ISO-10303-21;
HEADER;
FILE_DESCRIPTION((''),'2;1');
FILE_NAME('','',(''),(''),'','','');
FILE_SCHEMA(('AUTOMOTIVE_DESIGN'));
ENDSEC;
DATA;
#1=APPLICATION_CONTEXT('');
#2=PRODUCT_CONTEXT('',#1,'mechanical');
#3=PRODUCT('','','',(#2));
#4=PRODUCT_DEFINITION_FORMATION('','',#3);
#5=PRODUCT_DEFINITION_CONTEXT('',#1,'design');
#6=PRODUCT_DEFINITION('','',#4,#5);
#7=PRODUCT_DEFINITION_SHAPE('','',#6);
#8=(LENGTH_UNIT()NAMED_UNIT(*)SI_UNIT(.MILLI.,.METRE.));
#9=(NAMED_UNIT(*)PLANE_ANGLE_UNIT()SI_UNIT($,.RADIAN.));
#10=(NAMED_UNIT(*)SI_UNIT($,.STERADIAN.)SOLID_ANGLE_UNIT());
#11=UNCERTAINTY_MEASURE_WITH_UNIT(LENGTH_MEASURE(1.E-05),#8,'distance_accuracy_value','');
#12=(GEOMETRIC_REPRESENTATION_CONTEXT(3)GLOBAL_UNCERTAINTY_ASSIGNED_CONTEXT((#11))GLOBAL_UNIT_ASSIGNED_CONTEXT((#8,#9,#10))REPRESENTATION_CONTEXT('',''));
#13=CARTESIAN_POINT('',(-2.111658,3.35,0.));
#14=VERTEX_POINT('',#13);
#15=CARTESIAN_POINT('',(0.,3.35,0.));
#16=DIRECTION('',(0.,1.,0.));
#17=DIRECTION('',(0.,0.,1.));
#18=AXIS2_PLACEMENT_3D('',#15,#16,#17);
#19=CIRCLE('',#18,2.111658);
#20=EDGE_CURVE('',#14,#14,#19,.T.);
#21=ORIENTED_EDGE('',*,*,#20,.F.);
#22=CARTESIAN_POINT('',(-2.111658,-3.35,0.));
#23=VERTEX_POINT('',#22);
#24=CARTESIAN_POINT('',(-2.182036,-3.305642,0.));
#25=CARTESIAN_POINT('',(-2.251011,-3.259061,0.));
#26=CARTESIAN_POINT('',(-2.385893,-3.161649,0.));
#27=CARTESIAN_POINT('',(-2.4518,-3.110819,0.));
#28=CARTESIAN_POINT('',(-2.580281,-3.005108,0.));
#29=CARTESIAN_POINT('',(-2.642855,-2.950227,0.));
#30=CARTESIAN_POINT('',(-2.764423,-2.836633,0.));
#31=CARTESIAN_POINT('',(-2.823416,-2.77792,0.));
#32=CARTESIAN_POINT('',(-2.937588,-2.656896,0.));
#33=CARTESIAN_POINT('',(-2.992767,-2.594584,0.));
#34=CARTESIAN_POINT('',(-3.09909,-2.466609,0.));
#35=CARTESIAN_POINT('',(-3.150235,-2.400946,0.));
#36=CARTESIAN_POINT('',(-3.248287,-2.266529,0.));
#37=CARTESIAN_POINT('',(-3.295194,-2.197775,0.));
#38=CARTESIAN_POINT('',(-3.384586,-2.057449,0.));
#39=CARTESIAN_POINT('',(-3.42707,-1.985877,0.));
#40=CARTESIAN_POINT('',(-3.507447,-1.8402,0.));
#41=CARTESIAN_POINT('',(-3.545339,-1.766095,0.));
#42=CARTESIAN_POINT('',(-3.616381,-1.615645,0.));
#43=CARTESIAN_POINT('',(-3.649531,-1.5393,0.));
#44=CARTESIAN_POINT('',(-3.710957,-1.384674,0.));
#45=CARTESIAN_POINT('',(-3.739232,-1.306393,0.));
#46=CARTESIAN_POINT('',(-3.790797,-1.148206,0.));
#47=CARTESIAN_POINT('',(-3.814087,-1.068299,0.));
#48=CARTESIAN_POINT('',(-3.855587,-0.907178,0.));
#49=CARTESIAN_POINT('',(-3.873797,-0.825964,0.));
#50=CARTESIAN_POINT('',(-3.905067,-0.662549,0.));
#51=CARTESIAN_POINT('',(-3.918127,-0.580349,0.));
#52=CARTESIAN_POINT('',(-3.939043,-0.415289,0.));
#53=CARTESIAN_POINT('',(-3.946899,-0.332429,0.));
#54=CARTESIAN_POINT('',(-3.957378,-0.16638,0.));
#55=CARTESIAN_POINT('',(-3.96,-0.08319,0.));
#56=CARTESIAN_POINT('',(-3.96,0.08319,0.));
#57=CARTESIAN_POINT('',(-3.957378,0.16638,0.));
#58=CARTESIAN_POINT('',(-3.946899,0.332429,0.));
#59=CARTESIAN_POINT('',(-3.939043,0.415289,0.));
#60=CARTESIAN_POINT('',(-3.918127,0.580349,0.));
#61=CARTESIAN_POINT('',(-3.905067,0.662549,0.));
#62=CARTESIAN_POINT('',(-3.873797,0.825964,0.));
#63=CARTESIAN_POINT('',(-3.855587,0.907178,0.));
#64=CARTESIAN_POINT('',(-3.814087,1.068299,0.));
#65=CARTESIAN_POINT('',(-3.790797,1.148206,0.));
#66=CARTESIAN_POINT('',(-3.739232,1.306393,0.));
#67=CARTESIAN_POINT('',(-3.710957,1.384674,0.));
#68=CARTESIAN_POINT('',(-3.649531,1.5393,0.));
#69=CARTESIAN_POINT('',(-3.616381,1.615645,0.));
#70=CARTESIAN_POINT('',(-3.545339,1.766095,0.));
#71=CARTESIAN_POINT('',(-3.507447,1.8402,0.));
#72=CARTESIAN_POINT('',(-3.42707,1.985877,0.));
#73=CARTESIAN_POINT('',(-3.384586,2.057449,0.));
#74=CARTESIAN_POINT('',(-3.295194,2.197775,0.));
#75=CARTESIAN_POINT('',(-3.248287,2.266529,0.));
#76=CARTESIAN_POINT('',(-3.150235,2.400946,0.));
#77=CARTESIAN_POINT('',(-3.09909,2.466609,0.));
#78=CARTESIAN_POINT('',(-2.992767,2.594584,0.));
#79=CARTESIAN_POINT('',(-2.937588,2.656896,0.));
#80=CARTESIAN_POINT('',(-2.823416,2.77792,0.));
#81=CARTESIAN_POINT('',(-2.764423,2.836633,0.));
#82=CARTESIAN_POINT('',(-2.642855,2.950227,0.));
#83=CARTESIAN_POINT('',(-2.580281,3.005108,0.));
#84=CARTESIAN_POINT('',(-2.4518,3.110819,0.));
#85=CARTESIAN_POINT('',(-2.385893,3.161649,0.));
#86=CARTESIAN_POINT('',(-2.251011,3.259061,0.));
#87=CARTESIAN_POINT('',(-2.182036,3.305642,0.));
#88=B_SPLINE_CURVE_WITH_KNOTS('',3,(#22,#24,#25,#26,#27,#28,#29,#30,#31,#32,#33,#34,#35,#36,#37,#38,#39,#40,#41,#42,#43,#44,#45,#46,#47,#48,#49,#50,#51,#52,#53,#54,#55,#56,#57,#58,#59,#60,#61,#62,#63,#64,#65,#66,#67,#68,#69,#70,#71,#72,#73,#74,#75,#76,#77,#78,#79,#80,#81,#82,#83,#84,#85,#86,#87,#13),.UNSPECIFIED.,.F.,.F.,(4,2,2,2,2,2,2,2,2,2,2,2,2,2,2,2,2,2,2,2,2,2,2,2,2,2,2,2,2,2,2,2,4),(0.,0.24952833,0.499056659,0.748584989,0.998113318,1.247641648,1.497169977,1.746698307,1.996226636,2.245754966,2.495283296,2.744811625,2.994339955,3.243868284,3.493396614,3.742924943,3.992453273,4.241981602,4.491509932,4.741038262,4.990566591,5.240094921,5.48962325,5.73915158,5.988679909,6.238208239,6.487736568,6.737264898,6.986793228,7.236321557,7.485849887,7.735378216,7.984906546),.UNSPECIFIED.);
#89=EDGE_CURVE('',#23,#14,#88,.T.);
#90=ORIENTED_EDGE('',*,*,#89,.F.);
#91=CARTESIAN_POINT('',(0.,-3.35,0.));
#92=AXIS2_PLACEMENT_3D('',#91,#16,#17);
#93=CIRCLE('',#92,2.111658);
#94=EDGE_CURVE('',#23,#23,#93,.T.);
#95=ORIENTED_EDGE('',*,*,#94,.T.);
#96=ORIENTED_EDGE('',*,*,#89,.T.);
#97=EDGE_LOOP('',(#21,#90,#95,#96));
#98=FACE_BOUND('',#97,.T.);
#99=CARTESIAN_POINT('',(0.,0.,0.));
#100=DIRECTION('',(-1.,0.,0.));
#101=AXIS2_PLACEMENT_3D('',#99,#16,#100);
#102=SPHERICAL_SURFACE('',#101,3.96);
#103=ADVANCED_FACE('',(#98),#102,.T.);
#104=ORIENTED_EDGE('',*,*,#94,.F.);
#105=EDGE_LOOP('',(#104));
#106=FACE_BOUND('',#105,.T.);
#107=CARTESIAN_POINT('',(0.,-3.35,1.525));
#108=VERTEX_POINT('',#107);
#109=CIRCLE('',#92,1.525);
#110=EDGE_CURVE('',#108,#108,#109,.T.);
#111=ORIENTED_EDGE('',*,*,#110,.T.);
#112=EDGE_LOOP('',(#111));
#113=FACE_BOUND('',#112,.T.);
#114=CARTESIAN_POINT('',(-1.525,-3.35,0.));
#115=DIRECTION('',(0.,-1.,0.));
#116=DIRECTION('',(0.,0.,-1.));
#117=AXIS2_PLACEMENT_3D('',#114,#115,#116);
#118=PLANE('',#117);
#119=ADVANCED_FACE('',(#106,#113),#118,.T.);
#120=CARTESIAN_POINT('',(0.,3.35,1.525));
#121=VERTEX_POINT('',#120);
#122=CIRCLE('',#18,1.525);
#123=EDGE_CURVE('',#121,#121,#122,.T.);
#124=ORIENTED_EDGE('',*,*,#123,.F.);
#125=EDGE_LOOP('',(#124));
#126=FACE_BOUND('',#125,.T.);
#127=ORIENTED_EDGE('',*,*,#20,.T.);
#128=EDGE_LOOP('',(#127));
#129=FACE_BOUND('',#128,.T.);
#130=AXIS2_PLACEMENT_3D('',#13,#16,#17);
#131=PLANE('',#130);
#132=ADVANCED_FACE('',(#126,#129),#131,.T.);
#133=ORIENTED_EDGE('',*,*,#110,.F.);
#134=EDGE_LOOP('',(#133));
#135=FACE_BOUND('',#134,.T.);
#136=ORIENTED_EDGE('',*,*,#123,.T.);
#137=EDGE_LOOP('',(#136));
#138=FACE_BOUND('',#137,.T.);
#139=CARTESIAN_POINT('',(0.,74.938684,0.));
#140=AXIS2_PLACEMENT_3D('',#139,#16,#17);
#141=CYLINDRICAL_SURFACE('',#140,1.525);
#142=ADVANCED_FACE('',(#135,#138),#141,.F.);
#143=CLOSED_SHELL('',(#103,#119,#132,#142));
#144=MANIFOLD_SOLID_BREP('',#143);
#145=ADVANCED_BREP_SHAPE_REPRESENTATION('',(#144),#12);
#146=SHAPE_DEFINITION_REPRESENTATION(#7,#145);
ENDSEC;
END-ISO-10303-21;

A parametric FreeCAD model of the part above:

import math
import FreeCAD as App
import Part
import Sketcher
from FreeCAD import Vector

doc = App.newDocument("Part")
body = doc.addObject("PartDesign::Body", "Body")

sketch1 = doc.addObject("Sketcher::SketchObject", "Sketch")
body.addObject(sketch1)
sketch1.AttachmentSupport = (doc.XY_Plane, [""])
sketch1.MapMode = "FlatFace"
sketch1.addGeometry(Part.LineSegment(Vector(-1.5, 3.4, 0), Vector(-2.1, 3.4, 0)), False)
sketch1.addGeometry(Part.ArcOfCircle(Part.Circle(Vector(0, 0, 0), Vector(0, 0, 1), 4), math.radians(122), math.radians(238)), False)
sketch1.addGeometry(Part.LineSegment(Vector(-2.1, -3.4, 0), Vector(-1.5, -3.4, 0)), False)
sketch1.addGeometry(Part.LineSegment(Vector(-1.5, -3.4, 0), Vector(-1.5, 3.4, 0)), False)
sketch1.addConstraint(Sketcher.Constraint("Coincident", 0, 2, 1, 1))
sketch1.addConstraint(Sketcher.Constraint("Coincident", 1, 2, 2, 1))
sketch1.addConstraint(Sketcher.Constraint("Coincident", 2, 2, 3, 1))
sketch1.addConstraint(Sketcher.Constraint("Coincident", 3, 2, 0, 1))
sketch1.addConstraint(Sketcher.Constraint("Horizontal", 0))
sketch1.addConstraint(Sketcher.Constraint("Horizontal", 2))
sketch1.addConstraint(Sketcher.Constraint("Vertical", 3))
sketch1.addConstraint(Sketcher.Constraint("Coincident", 1, 3, -1, 1))
sketch1.addConstraint(Sketcher.Constraint("Vertical", 0, 2, 1, 2))
sketch1.addConstraint(Sketcher.Constraint("Radius", 1, 3.96))
sketch1.addConstraint(Sketcher.Constraint("DistanceY", 3, 1, 3, 2, 6.7))
sketch1.addConstraint(Sketcher.Constraint("DistanceX", 2, 2, -1, 1, 1.525))
revolution = doc.addObject("PartDesign::Revolution", "Revolution")
body.addObject(revolution)
revolution.Profile = sketch1
revolution.ReferenceAxis = (sketch1, ["V_Axis"])
revolution.Angle = 360

doc.recompute()
